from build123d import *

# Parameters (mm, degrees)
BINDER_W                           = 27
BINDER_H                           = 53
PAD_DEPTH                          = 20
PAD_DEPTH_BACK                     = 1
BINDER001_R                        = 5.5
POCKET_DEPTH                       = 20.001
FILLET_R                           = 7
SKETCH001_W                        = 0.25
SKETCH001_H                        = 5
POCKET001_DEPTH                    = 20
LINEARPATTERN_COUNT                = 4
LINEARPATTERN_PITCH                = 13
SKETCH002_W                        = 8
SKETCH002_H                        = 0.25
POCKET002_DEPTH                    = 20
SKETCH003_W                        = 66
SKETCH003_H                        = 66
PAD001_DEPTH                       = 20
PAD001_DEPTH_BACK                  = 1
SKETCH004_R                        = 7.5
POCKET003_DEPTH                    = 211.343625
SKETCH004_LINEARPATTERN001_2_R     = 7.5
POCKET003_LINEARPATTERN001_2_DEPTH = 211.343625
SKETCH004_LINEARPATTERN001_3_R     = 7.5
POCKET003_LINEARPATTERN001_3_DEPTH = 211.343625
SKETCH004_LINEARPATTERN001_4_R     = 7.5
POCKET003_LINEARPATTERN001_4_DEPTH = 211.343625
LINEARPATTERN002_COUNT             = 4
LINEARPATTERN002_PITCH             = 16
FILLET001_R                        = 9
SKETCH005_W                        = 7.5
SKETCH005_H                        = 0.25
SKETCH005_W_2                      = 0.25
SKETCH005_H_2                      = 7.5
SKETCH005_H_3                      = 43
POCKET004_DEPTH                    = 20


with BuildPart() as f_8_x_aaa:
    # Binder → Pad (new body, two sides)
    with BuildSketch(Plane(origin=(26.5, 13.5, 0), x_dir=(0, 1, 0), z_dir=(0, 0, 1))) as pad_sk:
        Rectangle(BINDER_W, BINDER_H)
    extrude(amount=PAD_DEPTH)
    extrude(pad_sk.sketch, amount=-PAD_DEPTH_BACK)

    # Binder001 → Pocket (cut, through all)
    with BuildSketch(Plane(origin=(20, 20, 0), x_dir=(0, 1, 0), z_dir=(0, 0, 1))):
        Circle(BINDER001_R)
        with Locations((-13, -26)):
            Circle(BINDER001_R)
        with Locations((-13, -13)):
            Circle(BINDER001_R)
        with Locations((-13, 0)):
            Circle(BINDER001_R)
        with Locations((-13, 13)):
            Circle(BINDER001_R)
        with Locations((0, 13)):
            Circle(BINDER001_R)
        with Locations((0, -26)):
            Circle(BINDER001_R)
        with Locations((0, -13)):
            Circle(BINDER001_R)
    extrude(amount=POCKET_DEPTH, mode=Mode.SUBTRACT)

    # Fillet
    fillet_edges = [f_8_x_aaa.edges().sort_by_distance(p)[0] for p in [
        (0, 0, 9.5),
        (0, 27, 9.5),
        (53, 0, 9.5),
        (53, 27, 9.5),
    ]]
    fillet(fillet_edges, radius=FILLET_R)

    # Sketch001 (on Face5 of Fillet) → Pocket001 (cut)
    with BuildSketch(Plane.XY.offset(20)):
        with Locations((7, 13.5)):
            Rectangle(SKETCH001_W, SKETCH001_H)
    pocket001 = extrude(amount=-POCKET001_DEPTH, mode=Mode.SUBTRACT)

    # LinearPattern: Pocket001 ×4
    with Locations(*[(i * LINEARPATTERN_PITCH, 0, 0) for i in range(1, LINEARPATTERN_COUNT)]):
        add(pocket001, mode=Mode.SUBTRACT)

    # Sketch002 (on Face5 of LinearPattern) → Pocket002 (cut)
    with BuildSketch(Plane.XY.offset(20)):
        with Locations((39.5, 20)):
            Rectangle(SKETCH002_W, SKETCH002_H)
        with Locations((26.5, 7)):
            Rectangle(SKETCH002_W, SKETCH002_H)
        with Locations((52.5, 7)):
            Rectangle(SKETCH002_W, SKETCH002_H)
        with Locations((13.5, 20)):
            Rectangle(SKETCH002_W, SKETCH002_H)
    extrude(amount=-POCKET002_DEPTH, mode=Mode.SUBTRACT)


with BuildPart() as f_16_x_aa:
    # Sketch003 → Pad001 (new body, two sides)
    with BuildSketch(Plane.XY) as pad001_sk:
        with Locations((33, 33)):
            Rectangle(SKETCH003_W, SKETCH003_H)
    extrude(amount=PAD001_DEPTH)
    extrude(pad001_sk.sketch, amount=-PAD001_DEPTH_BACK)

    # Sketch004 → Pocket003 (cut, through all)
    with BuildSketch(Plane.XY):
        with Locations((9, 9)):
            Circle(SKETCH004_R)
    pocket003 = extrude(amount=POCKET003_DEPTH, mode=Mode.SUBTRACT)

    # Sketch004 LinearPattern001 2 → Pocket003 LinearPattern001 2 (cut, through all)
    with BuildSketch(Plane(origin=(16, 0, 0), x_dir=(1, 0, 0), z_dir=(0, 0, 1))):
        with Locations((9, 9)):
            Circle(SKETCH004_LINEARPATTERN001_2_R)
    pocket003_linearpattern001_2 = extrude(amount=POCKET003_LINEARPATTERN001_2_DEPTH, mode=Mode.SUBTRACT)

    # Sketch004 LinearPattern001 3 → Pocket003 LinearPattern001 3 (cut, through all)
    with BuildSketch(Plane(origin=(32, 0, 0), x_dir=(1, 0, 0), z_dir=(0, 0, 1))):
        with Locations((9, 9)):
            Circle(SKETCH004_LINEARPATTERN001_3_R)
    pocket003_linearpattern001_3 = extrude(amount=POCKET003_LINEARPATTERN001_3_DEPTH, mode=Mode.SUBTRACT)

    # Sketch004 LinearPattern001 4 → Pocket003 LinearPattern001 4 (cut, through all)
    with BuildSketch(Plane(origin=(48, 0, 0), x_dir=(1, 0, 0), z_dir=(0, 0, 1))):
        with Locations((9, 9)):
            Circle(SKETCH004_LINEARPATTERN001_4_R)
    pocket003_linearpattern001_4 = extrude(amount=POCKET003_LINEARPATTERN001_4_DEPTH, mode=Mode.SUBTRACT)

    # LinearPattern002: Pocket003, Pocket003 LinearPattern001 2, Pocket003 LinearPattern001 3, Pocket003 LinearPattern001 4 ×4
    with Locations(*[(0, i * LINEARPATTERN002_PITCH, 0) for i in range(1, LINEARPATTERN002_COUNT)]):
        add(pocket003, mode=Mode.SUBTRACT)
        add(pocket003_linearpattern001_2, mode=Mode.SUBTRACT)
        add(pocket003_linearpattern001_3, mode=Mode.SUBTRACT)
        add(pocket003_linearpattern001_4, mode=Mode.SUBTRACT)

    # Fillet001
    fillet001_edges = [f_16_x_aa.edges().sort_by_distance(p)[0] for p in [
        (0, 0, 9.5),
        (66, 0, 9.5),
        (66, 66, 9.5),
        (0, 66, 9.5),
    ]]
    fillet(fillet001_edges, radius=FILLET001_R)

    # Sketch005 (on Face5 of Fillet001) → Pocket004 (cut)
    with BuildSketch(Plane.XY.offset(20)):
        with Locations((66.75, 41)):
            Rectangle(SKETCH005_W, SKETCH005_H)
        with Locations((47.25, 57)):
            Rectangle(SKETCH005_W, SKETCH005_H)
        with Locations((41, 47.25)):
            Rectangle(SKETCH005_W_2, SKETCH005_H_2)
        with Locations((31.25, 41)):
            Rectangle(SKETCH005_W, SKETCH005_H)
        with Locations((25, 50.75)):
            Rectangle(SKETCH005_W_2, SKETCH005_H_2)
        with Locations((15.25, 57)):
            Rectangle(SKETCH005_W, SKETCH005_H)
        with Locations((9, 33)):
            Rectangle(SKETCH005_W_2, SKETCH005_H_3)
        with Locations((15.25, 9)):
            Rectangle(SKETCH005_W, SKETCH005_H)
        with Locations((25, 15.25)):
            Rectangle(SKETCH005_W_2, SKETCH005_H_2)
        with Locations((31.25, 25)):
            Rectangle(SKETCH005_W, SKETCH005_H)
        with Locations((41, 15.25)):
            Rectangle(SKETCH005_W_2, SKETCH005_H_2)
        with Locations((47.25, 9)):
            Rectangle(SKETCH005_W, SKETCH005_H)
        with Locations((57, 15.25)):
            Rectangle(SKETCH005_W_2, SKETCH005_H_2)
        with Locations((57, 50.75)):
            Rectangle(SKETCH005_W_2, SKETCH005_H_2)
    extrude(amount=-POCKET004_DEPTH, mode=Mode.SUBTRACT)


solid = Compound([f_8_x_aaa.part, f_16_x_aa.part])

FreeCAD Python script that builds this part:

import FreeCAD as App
import Part
import Sketcher
from FreeCAD import Vector


def edges_at(feature, points):
    """Names of the edges that pass closest to the given points."""
    edges = feature.Shape.Edges
    near = lambda p: min(range(len(edges)), key=lambda i: edges[i].distToShape(Part.Vertex(*p))[0])
    return sorted({f"Edge{near(p) + 1}" for p in points})


def add_polygon(sketch, points):
    """Adds a closed chain of lines whose ends are joined by coincident constraints."""
    first, n = sketch.GeometryCount, len(points)
    for a, b in zip(points, points[1:] + points[:1]):
        sketch.addGeometry(Part.LineSegment(App.Vector(*a, 0), App.Vector(*b, 0)), False)
    for i in range(n):
        sketch.addConstraint(Sketcher.Constraint("Coincident", first + i, 2, first + (i + 1) % n, 1))

doc = App.newDocument("Part")
params = doc.addObject("Spreadsheet::Sheet", "Params")
for row, (alias, value) in enumerate([
    ("sketch1_width", "53 mm"),
    ("sketch1_height", "27 mm"),
    ("pad1_length", "20 mm"),
    ("pad1_length2", "1 mm"),
    ("sketch2_diameter", "11 mm"),
    ("fillet_radius", "7 mm"),
    ("sketch3_height", "5 mm"),
    ("sketch3_width", "0.25 mm"),
    ("pocket2_length", "20 mm"),
    ("linearpattern_pitch", "13 mm"),
    ("sketch4_width", "8 mm"),
    ("sketch4_height", "0.25 mm"),
    ("pocket3_length", "20 mm"),
    ("sketch5_width", "66 mm"),
    ("pad2_length", "20 mm"),
    ("pad2_length2", "1 mm"),
    ("sketch6_diameter", "15 mm"),
    ("sketch7_diameter", "15 mm"),
    ("sketch8_diameter", "15 mm"),
    ("sketch9_diameter", "15 mm"),
    ("linearpattern2_pitch", "16 mm"),
    ("fillet2_radius", "9 mm"),
    ("sketch10_height", "43 mm"),
    ("sketch10_width", "7.5 mm"),
    ("sketch10_width2", "0.25 mm"),
    ("pocket8_length", "20 mm"),
], start=1):
    params.set(f"A{row}", alias)
    params.set(f"B{row}", "=" + value)
    params.setAlias(f"B{row}", alias)

body = doc.addObject("PartDesign::Body", "Body")

sketch1 = doc.addObject("Sketcher::SketchObject", "Sketch")
body.addObject(sketch1)
sketch1.AttachmentSupport = (doc.XY_Plane, [""])
sketch1.MapMode = "FlatFace"
add_polygon(sketch1, [(0, 0), (53, 0), (53, 27), (0, 27)])
sketch1.addConstraint([
    Sketcher.Constraint("Horizontal", 0),
    Sketcher.Constraint("Vertical", 1),
    Sketcher.Constraint("Horizontal", 2),
    Sketcher.Constraint("Vertical", 3),
    Sketcher.Constraint("Coincident", 3, 2, -1, 1),
    Sketcher.Constraint("DistanceX", 0, 1, 0, 2, 53.0),
    Sketcher.Constraint("DistanceY", 1, 1, 1, 2, 27.0),
])
sketch1.setExpression("Constraints[9]", "Params.sketch1_width")
sketch1.setExpression("Constraints[10]", "Params.sketch1_height")
pad1 = doc.addObject("PartDesign::Pad", "Pad")
body.addObject(pad1)
pad1.Profile = sketch1
pad1.Type = "TwoLengths"
pad1.setExpression("Length", "Params.pad1_length")
pad1.setExpression("Length2", "Params.pad1_length2")

sketch2 = doc.addObject("Sketcher::SketchObject", "Sketch001")
body.addObject(sketch2)
sketch2.AttachmentSupport = (doc.XY_Plane, [""])
sketch2.MapMode = "FlatFace"
sketch2.addGeometry([
    Part.Circle(Vector(20, 20, 0), Vector(0, 0, 1), 6),
    Part.Circle(Vector(46, 7, 0), Vector(0, 0, 1), 6),
    Part.Circle(Vector(33, 7, 0), Vector(0, 0, 1), 6),
    Part.Circle(Vector(20, 7, 0), Vector(0, 0, 1), 6),
    Part.Circle(Vector(7, 7, 0), Vector(0, 0, 1), 6),
    Part.Circle(Vector(7, 20, 0), Vector(0, 0, 1), 6),
    Part.Circle(Vector(46, 20, 0), Vector(0, 0, 1), 6),
    Part.Circle(Vector(33, 20, 0), Vector(0, 0, 1), 6),
], False)
sketch2.addConstraint([
    Sketcher.Constraint("Equal", 0, 1),
    Sketcher.Constraint("Equal", 1, 2),
    Sketcher.Constraint("Equal", 2, 3),
    Sketcher.Constraint("Equal", 3, 4),
    Sketcher.Constraint("Equal", 4, 5),
    Sketcher.Constraint("Equal", 5, 6),
    Sketcher.Constraint("Equal", 6, 7),
    Sketcher.Constraint("Horizontal", 1, 3, 2, 3),
    Sketcher.Constraint("Horizontal", 2, 3, 3, 3),
    Sketcher.Constraint("Horizontal", 3, 3, 4, 3),
    Sketcher.Constraint("Horizontal", 0, 3, 5, 3),
    Sketcher.Constraint("Horizontal", 5, 3, 6, 3),
    Sketcher.Constraint("Horizontal", 6, 3, 7, 3),
    Sketcher.Constraint("Vertical", 0, 3, 3, 3),
    Sketcher.Constraint("Vertical", 4, 3, 5, 3),
    Sketcher.Constraint("Vertical", 1, 3, 6, 3),
    Sketcher.Constraint("Vertical", 2, 3, 7, 3),
    Sketcher.Constraint("Diameter", 0, 11.0),
    Sketcher.Constraint("DistanceX", -1, 1, 0, 3, 20.0),
    Sketcher.Constraint("DistanceY", -1, 1, 0, 3, 20.0),
    Sketcher.Constraint("DistanceX", -1, 1, 1, 3, 46.0),
    Sketcher.Constraint("DistanceY", -1, 1, 1, 3, 7.0),
    Sketcher.Constraint("DistanceX", -1, 1, 2, 3, 33.0),
    Sketcher.Constraint("DistanceX", -1, 1, 4, 3, 7.0),
])
sketch2.setExpression("Constraints[17]", "Params.sketch2_diameter")
pocket1 = doc.addObject("PartDesign::Pocket", "Pocket")
body.addObject(pocket1)
pocket1.Profile = sketch2
pocket1.Type = "ThroughAll"
pocket1.Reversed = True
doc.recompute()

fillet = doc.addObject("PartDesign::Fillet", "Fillet")
body.addObject(fillet)
fillet.Base = (pocket1, edges_at(pocket1, [
    (0, 0, 9.5),
    (0, 27, 9.5),
    (53, 0, 9.5),
    (53, 27, 9.5),
]))
fillet.setExpression("Radius", "Params.fillet_radius")

sketch3 = doc.addObject("Sketcher::SketchObject", "Sketch002")
body.addObject(sketch3)
sketch3.AttachmentSupport = (doc.XY_Plane, [""])
sketch3.MapMode = "FlatFace"
sketch3.AttachmentOffset = App.Placement(Vector(0, 0, 20), App.Rotation())
add_polygon(sketch3, [(6.88, 16), (6.88, 11), (7.12, 11), (7.12, 16)])
sketch3.addConstraint([
    Sketcher.Constraint("Vertical", 0),
    Sketcher.Constraint("Horizontal", 1),
    Sketcher.Constraint("Vertical", 2),
    Sketcher.Constraint("Horizontal", 3),
    Sketcher.Constraint("DistanceY", 0, 2, 0, 1, 5.0),
    Sketcher.Constraint("DistanceY", -1, 1, 0, 2, 11.0),
    Sketcher.Constraint("DistanceX", 1, 1, 1, 2, 0.25),
    Sketcher.Constraint("DistanceX", -1, 1, 0, 2, 6.875),
])
sketch3.setExpression("Constraints[8]", "Params.sketch3_height")
sketch3.setExpression("Constraints[10]", "Params.sketch3_width")
pocket2 = doc.addObject("PartDesign::Pocket", "Pocket001")
body.addObject(pocket2)
pocket2.Profile = sketch3
pocket2.setExpression("Length", "Params.pocket2_length")
doc.recompute()

linearpattern = doc.addObject("PartDesign::LinearPattern", "LinearPattern")
body.addObject(linearpattern)
linearpattern.Originals = [pocket2]
linearpattern.Direction = (doc.X_Axis, [""])
linearpattern.Mode = "offset"
linearpattern.setExpression("Offset", "Params.linearpattern_pitch")
linearpattern.Occurrences = 4
body.Tip = linearpattern

sketch4 = doc.addObject("Sketcher::SketchObject", "Sketch003")
body.addObject(sketch4)
sketch4.AttachmentSupport = (doc.XY_Plane, [""])
sketch4.MapMode = "FlatFace"
sketch4.AttachmentOffset = App.Placement(Vector(0, 0, 20), App.Rotation())
add_polygon(sketch4, [(35.5, 20.12), (35.5, 19.88), (43.5, 19.88), (43.5, 20.12)])
add_polygon(sketch4, [(22.5, 7.12), (22.5, 6.88), (30.5, 6.88), (30.5, 7.12)])
add_polygon(sketch4, [(48.5, 7.12), (48.5, 6.88), (56.5, 6.88), (56.5, 7.12)])
add_polygon(sketch4, [(9.5, 20.12), (9.5, 19.88), (17.5, 19.88), (17.5, 20.12)])
sketch4.addConstraint([
    Sketcher.Constraint("Vertical", 0),
    Sketcher.Constraint("Horizontal", 1),
    Sketcher.Constraint("Vertical", 2),
    Sketcher.Constraint("Horizontal", 3),
    Sketcher.Constraint("Vertical", 4),
    Sketcher.Constraint("Horizontal", 5),
    Sketcher.Constraint("Vertical", 6),
    Sketcher.Constraint("Horizontal", 7),
    Sketcher.Constraint("Vertical", 8),
    Sketcher.Constraint("Horizontal", 9),
    Sketcher.Constraint("Vertical", 10),
    Sketcher.Constraint("Horizontal", 11),
    Sketcher.Constraint("Vertical", 12),
    Sketcher.Constraint("Horizontal", 13),
    Sketcher.Constraint("Vertical", 14),
    Sketcher.Constraint("Horizontal", 15),
    Sketcher.Constraint("Horizontal", 5, 2, 8, 2),
    Sketcher.Constraint("Horizontal", 7, 2, 10, 2),
    Sketcher.Constraint("Horizontal", 1, 2, 12, 2),
    Sketcher.Constraint("Horizontal", 3, 2, 14, 2),
    Sketcher.Constraint("Equal", 3, 5),
    Sketcher.Constraint("Equal", 7, 9),
    Sketcher.Constraint("Equal", 11, 13),
    Sketcher.Constraint("Equal", 2, 4),
    Sketcher.Constraint("DistanceX", 1, 1, 1, 2, 8.0),
    Sketcher.Constraint("DistanceX", 4, 2, 0, 2, 13.0),
    Sketcher.Constraint("DistanceY", 4, 2, 0, 2, 13.0),
    Sketcher.Constraint("DistanceX", 1, 2, 8, 2, 5.0),
    Sketcher.Constraint("DistanceX", 12, 2, 7, 2, 13.0),
    Sketcher.Constraint("DistanceY", 0, 2, 0, 1, 0.25),
    Sketcher.Constraint("DistanceX", -1, 1, 0, 2, 35.5),
    Sketcher.Constraint("DistanceY", -1, 1, 0, 2, 19.875),
])
sketch4.setExpression("Constraints[40]", "Params.sketch4_width")
sketch4.setExpression("Constraints[45]", "Params.sketch4_height")
pocket3 = doc.addObject("PartDesign::Pocket", "Pocket002")
body.addObject(pocket3)
pocket3.Profile = sketch4
pocket3.setExpression("Length", "Params.pocket3_length")
body2 = doc.addObject("PartDesign::Body", "Body001")

sketch5 = doc.addObject("Sketcher::SketchObject", "Sketch004")
body2.addObject(sketch5)
sketch5.AttachmentSupport = (doc.getObject("XY_Plane001"), [""])
sketch5.MapMode = "FlatFace"
add_polygon(sketch5, [(0, 66), (0, 0), (66, 0), (66, 66)])
sketch5.addConstraint([
    Sketcher.Constraint("Vertical", 0),
    Sketcher.Constraint("Horizontal", 1),
    Sketcher.Constraint("Vertical", 2),
    Sketcher.Constraint("Horizontal", 3),
    Sketcher.Constraint("Coincident", 0, 2, -1, 1),
    Sketcher.Constraint("Equal", 3, 0),
    Sketcher.Constraint("DistanceX", 1, 1, 1, 2, 66.0),
])
sketch5.setExpression("Constraints[10]", "Params.sketch5_width")
pad2 = doc.addObject("PartDesign::Pad", "Pad001")
body2.addObject(pad2)
pad2.Profile = sketch5
pad2.Type = "TwoLengths"
pad2.setExpression("Length", "Params.pad2_length")
pad2.setExpression("Length2", "Params.pad2_length2")

sketch6 = doc.addObject("Sketcher::SketchObject", "Sketch005")
body2.addObject(sketch6)
sketch6.AttachmentSupport = (doc.getObject("XY_Plane001"), [""])
sketch6.MapMode = "FlatFace"
sketch6.addGeometry(Part.Circle(Vector(9, 9, 0), Vector(0, 0, 1), 8), False)
sketch6.addConstraint([
    Sketcher.Constraint("Diameter", 0, 15.0),
    Sketcher.Constraint("DistanceX", -1, 1, 0, 3, 9.0),
    Sketcher.Constraint("DistanceY", -1, 1, 0, 3, 9.0),
])
sketch6.setExpression("Constraints[0]", "Params.sketch6_diameter")
pocket4 = doc.addObject("PartDesign::Pocket", "Pocket003")
body2.addObject(pocket4)
pocket4.Profile = sketch6
pocket4.Type = "ThroughAll"
pocket4.Reversed = True

sketch7 = doc.addObject("Sketcher::SketchObject", "Sketch006")
body2.addObject(sketch7)
sketch7.AttachmentSupport = (doc.getObject("XY_Plane001"), [""])
sketch7.MapMode = "FlatFace"
sketch7.addGeometry(Part.Circle(Vector(25, 9, 0), Vector(0, 0, 1), 8), False)
sketch7.addConstraint([
    Sketcher.Constraint("Diameter", 0, 15.0),
    Sketcher.Constraint("DistanceX", -1, 1, 0, 3, 25.0),
    Sketcher.Constraint("DistanceY", -1, 1, 0, 3, 9.0),
])
sketch7.setExpression("Constraints[0]", "Params.sketch7_diameter")
pocket5 = doc.addObject("PartDesign::Pocket", "Pocket004")
body2.addObject(pocket5)
pocket5.Profile = sketch7
pocket5.Type = "ThroughAll"
pocket5.Reversed = True

sketch8 = doc.addObject("Sketcher::SketchObject", "Sketch007")
body2.addObject(sketch8)
sketch8.AttachmentSupport = (doc.getObject("XY_Plane001"), [""])
sketch8.MapMode = "FlatFace"
sketch8.addGeometry(Part.Circle(Vector(41, 9, 0), Vector(0, 0, 1), 8), False)
sketch8.addConstraint([
    Sketcher.Constraint("Diameter", 0, 15.0),
    Sketcher.Constraint("DistanceX", -1, 1, 0, 3, 41.0),
    Sketcher.Constraint("DistanceY", -1, 1, 0, 3, 9.0),
])
sketch8.setExpression("Constraints[0]", "Params.sketch8_diameter")
pocket6 = doc.addObject("PartDesign::Pocket", "Pocket005")
body2.addObject(pocket6)
pocket6.Profile = sketch8
pocket6.Type = "ThroughAll"
pocket6.Reversed = True

sketch9 = doc.addObject("Sketcher::SketchObject", "Sketch008")
body2.addObject(sketch9)
sketch9.AttachmentSupport = (doc.getObject("XY_Plane001"), [""])
sketch9.MapMode = "FlatFace"
sketch9.addGeometry(Part.Circle(Vector(57, 9, 0), Vector(0, 0, 1), 8), False)
sketch9.addConstraint([
    Sketcher.Constraint("Diameter", 0, 15.0),
    Sketcher.Constraint("DistanceX", -1, 1, 0, 3, 57.0),
    Sketcher.Constraint("DistanceY", -1, 1, 0, 3, 9.0),
])
sketch9.setExpression("Constraints[0]", "Params.sketch9_diameter")
pocket7 = doc.addObject("PartDesign::Pocket", "Pocket006")
body2.addObject(pocket7)
pocket7.Profile = sketch9
pocket7.Type = "ThroughAll"
pocket7.Reversed = True
doc.recompute()

linearpattern2 = doc.addObject("PartDesign::LinearPattern", "LinearPattern001")
body2.addObject(linearpattern2)
linearpattern2.Originals = [pocket4, pocket5, pocket6, pocket7]
linearpattern2.Direction = (doc.getObject("Y_Axis001"), [""])
linearpattern2.Mode = "offset"
linearpattern2.setExpression("Offset", "Params.linearpattern2_pitch")
linearpattern2.Occurrences = 4
body2.Tip = linearpattern2
doc.recompute()

fillet2 = doc.addObject("PartDesign::Fillet", "Fillet001")
body2.addObject(fillet2)
fillet2.Base = (linearpattern2, edges_at(linearpattern2, [
    (0, 0, 9.5),
    (66, 0, 9.5),
    (66, 66, 9.5),
    (0, 66, 9.5),
]))
fillet2.setExpression("Radius", "Params.fillet2_radius")

sketch10 = doc.addObject("Sketcher::SketchObject", "Sketch009")
body2.addObject(sketch10)
sketch10.AttachmentSupport = (doc.getObject("XY_Plane001"), [""])
sketch10.MapMode = "FlatFace"
sketch10.AttachmentOffset = App.Placement(Vector(0, 0, 20), App.Rotation())
add_polygon(sketch10, [(63, 41.12), (63, 40.88), (70.5, 40.88), (70.5, 41.12)])
add_polygon(sketch10, [(43.5, 57.12), (43.5, 56.88), (51, 56.88), (51, 57.12)])
add_polygon(sketch10, [(40.88, 51), (40.88, 43.5), (41.12, 43.5), (41.12, 51)])
add_polygon(sketch10, [(27.5, 41.12), (27.5, 40.88), (35, 40.88), (35, 41.12)])
add_polygon(sketch10, [(24.88, 54.5), (24.88, 47), (25.12, 47), (25.12, 54.5)])
add_polygon(sketch10, [(11.5, 57.12), (11.5, 56.88), (19, 56.88), (19, 57.12)])
add_polygon(sketch10, [(8.88, 54.5), (8.88, 11.5), (9.12, 11.5), (9.12, 54.5)])
add_polygon(sketch10, [(11.5, 9.12), (11.5, 8.88), (19, 8.88), (19, 9.12)])
add_polygon(sketch10, [(24.88, 19), (24.88, 11.5), (25.12, 11.5), (25.12, 19)])
add_polygon(sketch10, [(27.5, 25.12), (27.5, 24.88), (35, 24.88), (35, 25.12)])
add_polygon(sketch10, [(40.88, 19), (40.88, 11.5), (41.12, 11.5), (41.12, 19)])
add_polygon(sketch10, [(43.5, 9.12), (43.5, 8.88), (51, 8.88), (51, 9.12)])
add_polygon(sketch10, [(56.88, 19), (56.88, 11.5), (57.12, 11.5), (57.12, 19)])
add_polygon(sketch10, [(56.88, 54.5), (56.88, 47), (57.12, 47), (57.12, 54.5)])
sketch10.addConstraint([
    Sketcher.Constraint("Vertical", 0),
    Sketcher.Constraint("Horizontal", 1),
    Sketcher.Constraint("Vertical", 2),
    Sketcher.Constraint("Horizontal", 3),
    Sketcher.Constraint("Vertical", 4),
    Sketcher.Constraint("Horizontal", 5),
    Sketcher.Constraint("Vertical", 6),
    Sketcher.Constraint("Horizontal", 7),
    Sketcher.Constraint("Vertical", 8),
    Sketcher.Constraint("Horizontal", 9),
    Sketcher.Constraint("Vertical", 10),
    Sketcher.Constraint("Horizontal", 11),
    Sketcher.Constraint("Vertical", 12),
    Sketcher.Constraint("Horizontal", 13),
    Sketcher.Constraint("Vertical", 14),
    Sketcher.Constraint("Horizontal", 15),
    Sketcher.Constraint("Vertical", 16),
    Sketcher.Constraint("Horizontal", 17),
    Sketcher.Constraint("Vertical", 18),
    Sketcher.Constraint("Horizontal", 19),
    Sketcher.Constraint("Vertical", 20),
    Sketcher.Constraint("Horizontal", 21),
    Sketcher.Constraint("Vertical", 22),
    Sketcher.Constraint("Horizontal", 23),
    Sketcher.Constraint("Vertical", 24),
    Sketcher.Constraint("Horizontal", 25),
    Sketcher.Constraint("Vertical", 26),
    Sketcher.Constraint("Horizontal", 27),
    Sketcher.Constraint("Vertical", 28),
    Sketcher.Constraint("Horizontal", 29),
    Sketcher.Constraint("Vertical", 30),
    Sketcher.Constraint("Horizontal", 31),
    Sketcher.Constraint("Vertical", 32),
    Sketcher.Constraint("Horizontal", 33),
    Sketcher.Constraint("Vertical", 34),
    Sketcher.Constraint("Horizontal", 35),
    Sketcher.Constraint("Vertical", 36),
    Sketcher.Constraint("Horizontal", 37),
    Sketcher.Constraint("Vertical", 38),
    Sketcher.Constraint("Horizontal", 39),
    Sketcher.Constraint("Vertical", 40),
    Sketcher.Constraint("Horizontal", 41),
    Sketcher.Constraint("Vertical", 42),
    Sketcher.Constraint("Horizontal", 43),
    Sketcher.Constraint("Vertical", 44),
    Sketcher.Constraint("Horizontal", 45),
    Sketcher.Constraint("Vertical", 46),
    Sketcher.Constraint("Horizontal", 47),
    Sketcher.Constraint("Vertical", 48),
    Sketcher.Constraint("Horizontal", 49),
    Sketcher.Constraint("Vertical", 50),
    Sketcher.Constraint("Horizontal", 51),
    Sketcher.Constraint("Vertical", 52),
    Sketcher.Constraint("Horizontal", 53),
    Sketcher.Constraint("Vertical", 54),
    Sketcher.Constraint("Horizontal", 55),
    Sketcher.Constraint("Horizontal", 1, 2, 12, 2),
    Sketcher.Constraint("Horizontal", 3, 2, 14, 2),
    Sketcher.Constraint("Horizontal", 5, 2, 20, 2),
    Sketcher.Constraint("Horizontal", 7, 2, 22, 2),
    Sketcher.Constraint("Horizontal", 19, 2, 26, 2),
    Sketcher.Constraint("Horizontal", 25, 2, 32, 2),
    Sketcher.Constraint("Horizontal", 33, 2, 40, 2),
    Sketcher.Constraint("Horizontal", 35, 2, 42, 2),
    Sketcher.Constraint("Horizontal", 29, 2, 44, 2),
    Sketcher.Constraint("Horizontal", 31, 2, 46, 2),
    Sketcher.Constraint("Horizontal", 41, 2, 48, 2),
    Sketcher.Constraint("Horizontal", 43, 2, 50, 2),
    Sketcher.Constraint("Horizontal", 17, 2, 52, 2),
    Sketcher.Constraint("Horizontal", 27, 2, 54, 2),
    Sketcher.Constraint("Vertical", 23, 2, 28, 2),
    Sketcher.Constraint("Vertical", 22, 2, 29, 2),
    Sketcher.Constraint("Vertical", 19, 2, 32, 2),
    Sketcher.Constraint("Vertical", 18, 2, 33, 2),
    Sketcher.Constraint("Vertical", 15, 2, 36, 2),
    Sketcher.Constraint("Vertical", 14, 2, 37, 2),
    Sketcher.Constraint("Vertical", 11, 2, 40, 2),
    Sketcher.Constraint("Vertical", 10, 2, 41, 2),
    Sketcher.Constraint("Vertical", 7, 2, 44, 2),
    Sketcher.Constraint("Vertical", 6, 2, 45, 2),
    Sketcher.Constraint("Vertical", 51, 2, 52, 2),
    Sketcher.Constraint("Vertical", 50, 2, 53, 2),
    Sketcher.Constraint("Equal", 3, 5),
    Sketcher.Constraint("Equal", 7, 13),
    Sketcher.Constraint("Equal", 11, 17),
    Sketcher.Constraint("Equal", 15, 21),
    Sketcher.Constraint("Equal", 19, 25),
    Sketcher.Constraint("Equal", 43, 49),
    Sketcher.Constraint("Equal", 55, 0),
    Sketcher.Constraint("Equal", 2, 4),
    Sketcher.Constraint("Equal", 47, 8),
    Sketcher.Constraint("Equal", 10, 16),
    Sketcher.Constraint("Equal", 22, 28),
    Sketcher.Constraint("Equal", 18, 32),
    Sketcher.Constraint("Equal", 30, 36),
    Sketcher.Constraint("DistanceY", 24, 2, 24, 1, 43.0),
    Sketcher.Constraint("DistanceX", 1, 1, 1, 2, 7.5),
    Sketcher.Constraint("DistanceX", -1, 1, 0, 2, 63.0),
    Sketcher.Constraint("DistanceX", -1, 1, 5, 2, 51.0),
    Sketcher.Constraint("DistanceY", -1, 1, 10, 2, 51.0),
    Sketcher.Constraint("DistanceX", -1, 1, 13, 2, 35.0),
    Sketcher.Constraint("DistanceY", -1, 1, 16, 2, 47.0),
    Sketcher.Constraint("DistanceX", -1, 1, 21, 2, 19.0),
    Sketcher.Constraint("DistanceY", 0, 2, 4, 2, 16.0),
    Sketcher.Constraint("DistanceX", 16, 2, 8, 2, 16.0),
    Sketcher.Constraint("DistanceX", 24, 2, 16, 2, 16.0),
    Sketcher.Constraint("DistanceY", 28, 2, 12, 2, 32.0),
    Sketcher.Constraint("DistanceY", 36, 2, 12, 2, 16.0),
    Sketcher.Constraint("DistanceX", 42, 2, 50, 2, 16.0),
    Sketcher.Constraint("DistanceX", 9, 1, 9, 2, 0.25),
    Sketcher.Constraint("DistanceY", -1, 1, 0, 2, 40.875),
    Sketcher.Constraint("DistanceX", -1, 1, 8, 2, 40.875),
])
sketch10.setExpression("Constraints[151]", "Params.sketch10_height")
sketch10.setExpression("Constraints[152]", "Params.sketch10_width")
sketch10.setExpression("Constraints[165]", "Params.sketch10_width2")
pocket8 = doc.addObject("PartDesign::Pocket", "Pocket007")
body2.addObject(pocket8)
pocket8.Profile = sketch10
pocket8.setExpression("Length", "Params.pocket8_length")

doc.recompute()
